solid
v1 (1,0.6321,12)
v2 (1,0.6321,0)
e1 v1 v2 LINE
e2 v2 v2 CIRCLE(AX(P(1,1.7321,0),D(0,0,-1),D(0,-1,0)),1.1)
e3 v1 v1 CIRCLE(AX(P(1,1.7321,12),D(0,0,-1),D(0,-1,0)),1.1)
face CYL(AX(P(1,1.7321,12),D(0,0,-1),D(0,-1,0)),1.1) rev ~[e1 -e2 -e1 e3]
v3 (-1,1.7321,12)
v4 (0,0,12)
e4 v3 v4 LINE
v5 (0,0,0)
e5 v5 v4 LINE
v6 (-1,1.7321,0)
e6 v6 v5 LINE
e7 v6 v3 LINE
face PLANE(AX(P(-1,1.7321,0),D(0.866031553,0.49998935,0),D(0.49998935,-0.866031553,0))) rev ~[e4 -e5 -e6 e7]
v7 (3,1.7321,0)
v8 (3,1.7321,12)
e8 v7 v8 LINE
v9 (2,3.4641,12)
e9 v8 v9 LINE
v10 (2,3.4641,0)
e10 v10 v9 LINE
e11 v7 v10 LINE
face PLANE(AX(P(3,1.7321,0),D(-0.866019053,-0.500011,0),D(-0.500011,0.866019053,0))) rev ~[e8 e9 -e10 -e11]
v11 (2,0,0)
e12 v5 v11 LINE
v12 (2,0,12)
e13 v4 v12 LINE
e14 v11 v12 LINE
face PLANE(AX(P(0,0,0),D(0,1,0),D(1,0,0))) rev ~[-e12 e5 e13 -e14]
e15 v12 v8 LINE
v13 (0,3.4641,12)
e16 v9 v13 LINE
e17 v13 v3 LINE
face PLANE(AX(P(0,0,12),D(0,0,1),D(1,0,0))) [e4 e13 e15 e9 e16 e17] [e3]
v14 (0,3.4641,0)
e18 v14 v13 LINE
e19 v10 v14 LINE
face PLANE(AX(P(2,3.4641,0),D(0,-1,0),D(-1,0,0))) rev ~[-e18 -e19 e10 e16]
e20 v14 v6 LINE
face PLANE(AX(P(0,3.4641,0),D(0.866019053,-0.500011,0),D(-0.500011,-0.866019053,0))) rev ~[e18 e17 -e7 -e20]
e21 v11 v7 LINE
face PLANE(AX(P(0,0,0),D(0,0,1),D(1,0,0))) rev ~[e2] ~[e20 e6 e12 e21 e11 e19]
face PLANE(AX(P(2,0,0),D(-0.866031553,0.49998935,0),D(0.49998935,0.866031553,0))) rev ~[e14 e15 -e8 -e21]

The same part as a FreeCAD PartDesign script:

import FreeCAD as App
import Part
import Sketcher

V = App.Vector
Q = App.Units.Quantity


def add_polygon(sketch, points):
    """Adds a closed chain of lines whose ends are joined by coincident constraints."""
    first, n = sketch.GeometryCount, len(points)
    for a, b in zip(points, points[1:] + points[:1]):
        sketch.addGeometry(Part.LineSegment(App.Vector(*a, 0), App.Vector(*b, 0)), False)
    for i in range(n):
        sketch.addConstraint(Sketcher.Constraint("Coincident", first + i, 2, first + (i + 1) % n, 1))

doc = App.newDocument("Part")
params = doc.addObject("Spreadsheet::Sheet", "Params")
for row, (alias, value) in enumerate([
    ("sketch1_width", "2 mm"),
    ("sketch1_length", "2 mm"),
    ("pad1_length", "12 mm"),
    ("sketch2_diameter", "2.2 mm"),
    ("hole_diameter", "2.2 mm"),
], start=1):
    params.set(f"A{row}", alias)
    params.set(f"B{row}", "=" + value)
    params.setAlias(f"B{row}", alias)

body = doc.addObject("PartDesign::Body", "Body")

# Sketch on XY plane
sketch1 = doc.addObject("Sketcher::SketchObject", "Sketch")
body.addObject(sketch1)
sketch1.AttachmentSupport = (doc.XY_Plane, [""])
sketch1.MapMode = "FlatFace"
add_polygon(sketch1, [(-1, 1.7321), (0, 0), (2, 0), (3, 1.7321), (2, 3.4641), (0, 3.4641)])  # lines 0-5
sketch1.addConstraint([
    Sketcher.Constraint("Horizontal", 1),
    Sketcher.Constraint("Horizontal", 4),
    Sketcher.Constraint("Coincident", 0, 2, -1, 1),
    Sketcher.Constraint("PointOnObject", 4, 2, -2),
    Sketcher.Constraint("Parallel", 0, 3),
    Sketcher.Constraint("Parallel", 2, 5),
    Sketcher.Constraint("Horizontal", 2, 2, 5, 2),
    Sketcher.Constraint("Vertical", 1, 2, 3, 2),
    Sketcher.Constraint("DistanceX", 1, 1, 1, 2, Q("2 mm")),
    Sketcher.Constraint("Angle", 0, Q("-60.0007 deg")),
    Sketcher.Constraint("Distance", 0, Q("2 mm")),
])
sketch1.setExpression("Constraints[14]", "Params.sketch1_width")
sketch1.setExpression("Constraints[16]", "Params.sketch1_length")
pad1 = doc.addObject("PartDesign::Pad", "Pad")
body.addObject(pad1)
pad1.Profile = sketch1
pad1.setExpression("Length", "Params.pad1_length")

# Sketch on XY plane
sketch2 = doc.addObject("Sketcher::SketchObject", "Sketch001")
body.addObject(sketch2)
sketch2.AttachmentSupport = (doc.XY_Plane, [""])
sketch2.MapMode = "FlatFace"
sketch2.AttachmentOffset = App.Placement(V(0, 0, 12), App.Rotation())
sketch2.addGeometry(Part.Circle(V(1, 1.7321, 0), V(0, 0, 1), 1.1), False)
sketch2.addConstraint([
    Sketcher.Constraint("Diameter", 0, Q("2.2 mm")),
    Sketcher.Constraint("DistanceX", -1, 1, 0, 3, Q("1 mm")),
    Sketcher.Constraint("DistanceY", -1, 1, 0, 3, Q("1.732 mm")),
])
sketch2.setExpression("Constraints[0]", "Params.sketch2_diameter")
doc.recompute()
hole = doc.addObject("PartDesign::Hole", "Hole")
body.addObject(hole)
hole.Profile = sketch2
hole.ThreadType = "None"
hole.setExpression("Diameter", "Params.hole_diameter")
hole.DepthType = "ThroughAll"

doc.recompute()
